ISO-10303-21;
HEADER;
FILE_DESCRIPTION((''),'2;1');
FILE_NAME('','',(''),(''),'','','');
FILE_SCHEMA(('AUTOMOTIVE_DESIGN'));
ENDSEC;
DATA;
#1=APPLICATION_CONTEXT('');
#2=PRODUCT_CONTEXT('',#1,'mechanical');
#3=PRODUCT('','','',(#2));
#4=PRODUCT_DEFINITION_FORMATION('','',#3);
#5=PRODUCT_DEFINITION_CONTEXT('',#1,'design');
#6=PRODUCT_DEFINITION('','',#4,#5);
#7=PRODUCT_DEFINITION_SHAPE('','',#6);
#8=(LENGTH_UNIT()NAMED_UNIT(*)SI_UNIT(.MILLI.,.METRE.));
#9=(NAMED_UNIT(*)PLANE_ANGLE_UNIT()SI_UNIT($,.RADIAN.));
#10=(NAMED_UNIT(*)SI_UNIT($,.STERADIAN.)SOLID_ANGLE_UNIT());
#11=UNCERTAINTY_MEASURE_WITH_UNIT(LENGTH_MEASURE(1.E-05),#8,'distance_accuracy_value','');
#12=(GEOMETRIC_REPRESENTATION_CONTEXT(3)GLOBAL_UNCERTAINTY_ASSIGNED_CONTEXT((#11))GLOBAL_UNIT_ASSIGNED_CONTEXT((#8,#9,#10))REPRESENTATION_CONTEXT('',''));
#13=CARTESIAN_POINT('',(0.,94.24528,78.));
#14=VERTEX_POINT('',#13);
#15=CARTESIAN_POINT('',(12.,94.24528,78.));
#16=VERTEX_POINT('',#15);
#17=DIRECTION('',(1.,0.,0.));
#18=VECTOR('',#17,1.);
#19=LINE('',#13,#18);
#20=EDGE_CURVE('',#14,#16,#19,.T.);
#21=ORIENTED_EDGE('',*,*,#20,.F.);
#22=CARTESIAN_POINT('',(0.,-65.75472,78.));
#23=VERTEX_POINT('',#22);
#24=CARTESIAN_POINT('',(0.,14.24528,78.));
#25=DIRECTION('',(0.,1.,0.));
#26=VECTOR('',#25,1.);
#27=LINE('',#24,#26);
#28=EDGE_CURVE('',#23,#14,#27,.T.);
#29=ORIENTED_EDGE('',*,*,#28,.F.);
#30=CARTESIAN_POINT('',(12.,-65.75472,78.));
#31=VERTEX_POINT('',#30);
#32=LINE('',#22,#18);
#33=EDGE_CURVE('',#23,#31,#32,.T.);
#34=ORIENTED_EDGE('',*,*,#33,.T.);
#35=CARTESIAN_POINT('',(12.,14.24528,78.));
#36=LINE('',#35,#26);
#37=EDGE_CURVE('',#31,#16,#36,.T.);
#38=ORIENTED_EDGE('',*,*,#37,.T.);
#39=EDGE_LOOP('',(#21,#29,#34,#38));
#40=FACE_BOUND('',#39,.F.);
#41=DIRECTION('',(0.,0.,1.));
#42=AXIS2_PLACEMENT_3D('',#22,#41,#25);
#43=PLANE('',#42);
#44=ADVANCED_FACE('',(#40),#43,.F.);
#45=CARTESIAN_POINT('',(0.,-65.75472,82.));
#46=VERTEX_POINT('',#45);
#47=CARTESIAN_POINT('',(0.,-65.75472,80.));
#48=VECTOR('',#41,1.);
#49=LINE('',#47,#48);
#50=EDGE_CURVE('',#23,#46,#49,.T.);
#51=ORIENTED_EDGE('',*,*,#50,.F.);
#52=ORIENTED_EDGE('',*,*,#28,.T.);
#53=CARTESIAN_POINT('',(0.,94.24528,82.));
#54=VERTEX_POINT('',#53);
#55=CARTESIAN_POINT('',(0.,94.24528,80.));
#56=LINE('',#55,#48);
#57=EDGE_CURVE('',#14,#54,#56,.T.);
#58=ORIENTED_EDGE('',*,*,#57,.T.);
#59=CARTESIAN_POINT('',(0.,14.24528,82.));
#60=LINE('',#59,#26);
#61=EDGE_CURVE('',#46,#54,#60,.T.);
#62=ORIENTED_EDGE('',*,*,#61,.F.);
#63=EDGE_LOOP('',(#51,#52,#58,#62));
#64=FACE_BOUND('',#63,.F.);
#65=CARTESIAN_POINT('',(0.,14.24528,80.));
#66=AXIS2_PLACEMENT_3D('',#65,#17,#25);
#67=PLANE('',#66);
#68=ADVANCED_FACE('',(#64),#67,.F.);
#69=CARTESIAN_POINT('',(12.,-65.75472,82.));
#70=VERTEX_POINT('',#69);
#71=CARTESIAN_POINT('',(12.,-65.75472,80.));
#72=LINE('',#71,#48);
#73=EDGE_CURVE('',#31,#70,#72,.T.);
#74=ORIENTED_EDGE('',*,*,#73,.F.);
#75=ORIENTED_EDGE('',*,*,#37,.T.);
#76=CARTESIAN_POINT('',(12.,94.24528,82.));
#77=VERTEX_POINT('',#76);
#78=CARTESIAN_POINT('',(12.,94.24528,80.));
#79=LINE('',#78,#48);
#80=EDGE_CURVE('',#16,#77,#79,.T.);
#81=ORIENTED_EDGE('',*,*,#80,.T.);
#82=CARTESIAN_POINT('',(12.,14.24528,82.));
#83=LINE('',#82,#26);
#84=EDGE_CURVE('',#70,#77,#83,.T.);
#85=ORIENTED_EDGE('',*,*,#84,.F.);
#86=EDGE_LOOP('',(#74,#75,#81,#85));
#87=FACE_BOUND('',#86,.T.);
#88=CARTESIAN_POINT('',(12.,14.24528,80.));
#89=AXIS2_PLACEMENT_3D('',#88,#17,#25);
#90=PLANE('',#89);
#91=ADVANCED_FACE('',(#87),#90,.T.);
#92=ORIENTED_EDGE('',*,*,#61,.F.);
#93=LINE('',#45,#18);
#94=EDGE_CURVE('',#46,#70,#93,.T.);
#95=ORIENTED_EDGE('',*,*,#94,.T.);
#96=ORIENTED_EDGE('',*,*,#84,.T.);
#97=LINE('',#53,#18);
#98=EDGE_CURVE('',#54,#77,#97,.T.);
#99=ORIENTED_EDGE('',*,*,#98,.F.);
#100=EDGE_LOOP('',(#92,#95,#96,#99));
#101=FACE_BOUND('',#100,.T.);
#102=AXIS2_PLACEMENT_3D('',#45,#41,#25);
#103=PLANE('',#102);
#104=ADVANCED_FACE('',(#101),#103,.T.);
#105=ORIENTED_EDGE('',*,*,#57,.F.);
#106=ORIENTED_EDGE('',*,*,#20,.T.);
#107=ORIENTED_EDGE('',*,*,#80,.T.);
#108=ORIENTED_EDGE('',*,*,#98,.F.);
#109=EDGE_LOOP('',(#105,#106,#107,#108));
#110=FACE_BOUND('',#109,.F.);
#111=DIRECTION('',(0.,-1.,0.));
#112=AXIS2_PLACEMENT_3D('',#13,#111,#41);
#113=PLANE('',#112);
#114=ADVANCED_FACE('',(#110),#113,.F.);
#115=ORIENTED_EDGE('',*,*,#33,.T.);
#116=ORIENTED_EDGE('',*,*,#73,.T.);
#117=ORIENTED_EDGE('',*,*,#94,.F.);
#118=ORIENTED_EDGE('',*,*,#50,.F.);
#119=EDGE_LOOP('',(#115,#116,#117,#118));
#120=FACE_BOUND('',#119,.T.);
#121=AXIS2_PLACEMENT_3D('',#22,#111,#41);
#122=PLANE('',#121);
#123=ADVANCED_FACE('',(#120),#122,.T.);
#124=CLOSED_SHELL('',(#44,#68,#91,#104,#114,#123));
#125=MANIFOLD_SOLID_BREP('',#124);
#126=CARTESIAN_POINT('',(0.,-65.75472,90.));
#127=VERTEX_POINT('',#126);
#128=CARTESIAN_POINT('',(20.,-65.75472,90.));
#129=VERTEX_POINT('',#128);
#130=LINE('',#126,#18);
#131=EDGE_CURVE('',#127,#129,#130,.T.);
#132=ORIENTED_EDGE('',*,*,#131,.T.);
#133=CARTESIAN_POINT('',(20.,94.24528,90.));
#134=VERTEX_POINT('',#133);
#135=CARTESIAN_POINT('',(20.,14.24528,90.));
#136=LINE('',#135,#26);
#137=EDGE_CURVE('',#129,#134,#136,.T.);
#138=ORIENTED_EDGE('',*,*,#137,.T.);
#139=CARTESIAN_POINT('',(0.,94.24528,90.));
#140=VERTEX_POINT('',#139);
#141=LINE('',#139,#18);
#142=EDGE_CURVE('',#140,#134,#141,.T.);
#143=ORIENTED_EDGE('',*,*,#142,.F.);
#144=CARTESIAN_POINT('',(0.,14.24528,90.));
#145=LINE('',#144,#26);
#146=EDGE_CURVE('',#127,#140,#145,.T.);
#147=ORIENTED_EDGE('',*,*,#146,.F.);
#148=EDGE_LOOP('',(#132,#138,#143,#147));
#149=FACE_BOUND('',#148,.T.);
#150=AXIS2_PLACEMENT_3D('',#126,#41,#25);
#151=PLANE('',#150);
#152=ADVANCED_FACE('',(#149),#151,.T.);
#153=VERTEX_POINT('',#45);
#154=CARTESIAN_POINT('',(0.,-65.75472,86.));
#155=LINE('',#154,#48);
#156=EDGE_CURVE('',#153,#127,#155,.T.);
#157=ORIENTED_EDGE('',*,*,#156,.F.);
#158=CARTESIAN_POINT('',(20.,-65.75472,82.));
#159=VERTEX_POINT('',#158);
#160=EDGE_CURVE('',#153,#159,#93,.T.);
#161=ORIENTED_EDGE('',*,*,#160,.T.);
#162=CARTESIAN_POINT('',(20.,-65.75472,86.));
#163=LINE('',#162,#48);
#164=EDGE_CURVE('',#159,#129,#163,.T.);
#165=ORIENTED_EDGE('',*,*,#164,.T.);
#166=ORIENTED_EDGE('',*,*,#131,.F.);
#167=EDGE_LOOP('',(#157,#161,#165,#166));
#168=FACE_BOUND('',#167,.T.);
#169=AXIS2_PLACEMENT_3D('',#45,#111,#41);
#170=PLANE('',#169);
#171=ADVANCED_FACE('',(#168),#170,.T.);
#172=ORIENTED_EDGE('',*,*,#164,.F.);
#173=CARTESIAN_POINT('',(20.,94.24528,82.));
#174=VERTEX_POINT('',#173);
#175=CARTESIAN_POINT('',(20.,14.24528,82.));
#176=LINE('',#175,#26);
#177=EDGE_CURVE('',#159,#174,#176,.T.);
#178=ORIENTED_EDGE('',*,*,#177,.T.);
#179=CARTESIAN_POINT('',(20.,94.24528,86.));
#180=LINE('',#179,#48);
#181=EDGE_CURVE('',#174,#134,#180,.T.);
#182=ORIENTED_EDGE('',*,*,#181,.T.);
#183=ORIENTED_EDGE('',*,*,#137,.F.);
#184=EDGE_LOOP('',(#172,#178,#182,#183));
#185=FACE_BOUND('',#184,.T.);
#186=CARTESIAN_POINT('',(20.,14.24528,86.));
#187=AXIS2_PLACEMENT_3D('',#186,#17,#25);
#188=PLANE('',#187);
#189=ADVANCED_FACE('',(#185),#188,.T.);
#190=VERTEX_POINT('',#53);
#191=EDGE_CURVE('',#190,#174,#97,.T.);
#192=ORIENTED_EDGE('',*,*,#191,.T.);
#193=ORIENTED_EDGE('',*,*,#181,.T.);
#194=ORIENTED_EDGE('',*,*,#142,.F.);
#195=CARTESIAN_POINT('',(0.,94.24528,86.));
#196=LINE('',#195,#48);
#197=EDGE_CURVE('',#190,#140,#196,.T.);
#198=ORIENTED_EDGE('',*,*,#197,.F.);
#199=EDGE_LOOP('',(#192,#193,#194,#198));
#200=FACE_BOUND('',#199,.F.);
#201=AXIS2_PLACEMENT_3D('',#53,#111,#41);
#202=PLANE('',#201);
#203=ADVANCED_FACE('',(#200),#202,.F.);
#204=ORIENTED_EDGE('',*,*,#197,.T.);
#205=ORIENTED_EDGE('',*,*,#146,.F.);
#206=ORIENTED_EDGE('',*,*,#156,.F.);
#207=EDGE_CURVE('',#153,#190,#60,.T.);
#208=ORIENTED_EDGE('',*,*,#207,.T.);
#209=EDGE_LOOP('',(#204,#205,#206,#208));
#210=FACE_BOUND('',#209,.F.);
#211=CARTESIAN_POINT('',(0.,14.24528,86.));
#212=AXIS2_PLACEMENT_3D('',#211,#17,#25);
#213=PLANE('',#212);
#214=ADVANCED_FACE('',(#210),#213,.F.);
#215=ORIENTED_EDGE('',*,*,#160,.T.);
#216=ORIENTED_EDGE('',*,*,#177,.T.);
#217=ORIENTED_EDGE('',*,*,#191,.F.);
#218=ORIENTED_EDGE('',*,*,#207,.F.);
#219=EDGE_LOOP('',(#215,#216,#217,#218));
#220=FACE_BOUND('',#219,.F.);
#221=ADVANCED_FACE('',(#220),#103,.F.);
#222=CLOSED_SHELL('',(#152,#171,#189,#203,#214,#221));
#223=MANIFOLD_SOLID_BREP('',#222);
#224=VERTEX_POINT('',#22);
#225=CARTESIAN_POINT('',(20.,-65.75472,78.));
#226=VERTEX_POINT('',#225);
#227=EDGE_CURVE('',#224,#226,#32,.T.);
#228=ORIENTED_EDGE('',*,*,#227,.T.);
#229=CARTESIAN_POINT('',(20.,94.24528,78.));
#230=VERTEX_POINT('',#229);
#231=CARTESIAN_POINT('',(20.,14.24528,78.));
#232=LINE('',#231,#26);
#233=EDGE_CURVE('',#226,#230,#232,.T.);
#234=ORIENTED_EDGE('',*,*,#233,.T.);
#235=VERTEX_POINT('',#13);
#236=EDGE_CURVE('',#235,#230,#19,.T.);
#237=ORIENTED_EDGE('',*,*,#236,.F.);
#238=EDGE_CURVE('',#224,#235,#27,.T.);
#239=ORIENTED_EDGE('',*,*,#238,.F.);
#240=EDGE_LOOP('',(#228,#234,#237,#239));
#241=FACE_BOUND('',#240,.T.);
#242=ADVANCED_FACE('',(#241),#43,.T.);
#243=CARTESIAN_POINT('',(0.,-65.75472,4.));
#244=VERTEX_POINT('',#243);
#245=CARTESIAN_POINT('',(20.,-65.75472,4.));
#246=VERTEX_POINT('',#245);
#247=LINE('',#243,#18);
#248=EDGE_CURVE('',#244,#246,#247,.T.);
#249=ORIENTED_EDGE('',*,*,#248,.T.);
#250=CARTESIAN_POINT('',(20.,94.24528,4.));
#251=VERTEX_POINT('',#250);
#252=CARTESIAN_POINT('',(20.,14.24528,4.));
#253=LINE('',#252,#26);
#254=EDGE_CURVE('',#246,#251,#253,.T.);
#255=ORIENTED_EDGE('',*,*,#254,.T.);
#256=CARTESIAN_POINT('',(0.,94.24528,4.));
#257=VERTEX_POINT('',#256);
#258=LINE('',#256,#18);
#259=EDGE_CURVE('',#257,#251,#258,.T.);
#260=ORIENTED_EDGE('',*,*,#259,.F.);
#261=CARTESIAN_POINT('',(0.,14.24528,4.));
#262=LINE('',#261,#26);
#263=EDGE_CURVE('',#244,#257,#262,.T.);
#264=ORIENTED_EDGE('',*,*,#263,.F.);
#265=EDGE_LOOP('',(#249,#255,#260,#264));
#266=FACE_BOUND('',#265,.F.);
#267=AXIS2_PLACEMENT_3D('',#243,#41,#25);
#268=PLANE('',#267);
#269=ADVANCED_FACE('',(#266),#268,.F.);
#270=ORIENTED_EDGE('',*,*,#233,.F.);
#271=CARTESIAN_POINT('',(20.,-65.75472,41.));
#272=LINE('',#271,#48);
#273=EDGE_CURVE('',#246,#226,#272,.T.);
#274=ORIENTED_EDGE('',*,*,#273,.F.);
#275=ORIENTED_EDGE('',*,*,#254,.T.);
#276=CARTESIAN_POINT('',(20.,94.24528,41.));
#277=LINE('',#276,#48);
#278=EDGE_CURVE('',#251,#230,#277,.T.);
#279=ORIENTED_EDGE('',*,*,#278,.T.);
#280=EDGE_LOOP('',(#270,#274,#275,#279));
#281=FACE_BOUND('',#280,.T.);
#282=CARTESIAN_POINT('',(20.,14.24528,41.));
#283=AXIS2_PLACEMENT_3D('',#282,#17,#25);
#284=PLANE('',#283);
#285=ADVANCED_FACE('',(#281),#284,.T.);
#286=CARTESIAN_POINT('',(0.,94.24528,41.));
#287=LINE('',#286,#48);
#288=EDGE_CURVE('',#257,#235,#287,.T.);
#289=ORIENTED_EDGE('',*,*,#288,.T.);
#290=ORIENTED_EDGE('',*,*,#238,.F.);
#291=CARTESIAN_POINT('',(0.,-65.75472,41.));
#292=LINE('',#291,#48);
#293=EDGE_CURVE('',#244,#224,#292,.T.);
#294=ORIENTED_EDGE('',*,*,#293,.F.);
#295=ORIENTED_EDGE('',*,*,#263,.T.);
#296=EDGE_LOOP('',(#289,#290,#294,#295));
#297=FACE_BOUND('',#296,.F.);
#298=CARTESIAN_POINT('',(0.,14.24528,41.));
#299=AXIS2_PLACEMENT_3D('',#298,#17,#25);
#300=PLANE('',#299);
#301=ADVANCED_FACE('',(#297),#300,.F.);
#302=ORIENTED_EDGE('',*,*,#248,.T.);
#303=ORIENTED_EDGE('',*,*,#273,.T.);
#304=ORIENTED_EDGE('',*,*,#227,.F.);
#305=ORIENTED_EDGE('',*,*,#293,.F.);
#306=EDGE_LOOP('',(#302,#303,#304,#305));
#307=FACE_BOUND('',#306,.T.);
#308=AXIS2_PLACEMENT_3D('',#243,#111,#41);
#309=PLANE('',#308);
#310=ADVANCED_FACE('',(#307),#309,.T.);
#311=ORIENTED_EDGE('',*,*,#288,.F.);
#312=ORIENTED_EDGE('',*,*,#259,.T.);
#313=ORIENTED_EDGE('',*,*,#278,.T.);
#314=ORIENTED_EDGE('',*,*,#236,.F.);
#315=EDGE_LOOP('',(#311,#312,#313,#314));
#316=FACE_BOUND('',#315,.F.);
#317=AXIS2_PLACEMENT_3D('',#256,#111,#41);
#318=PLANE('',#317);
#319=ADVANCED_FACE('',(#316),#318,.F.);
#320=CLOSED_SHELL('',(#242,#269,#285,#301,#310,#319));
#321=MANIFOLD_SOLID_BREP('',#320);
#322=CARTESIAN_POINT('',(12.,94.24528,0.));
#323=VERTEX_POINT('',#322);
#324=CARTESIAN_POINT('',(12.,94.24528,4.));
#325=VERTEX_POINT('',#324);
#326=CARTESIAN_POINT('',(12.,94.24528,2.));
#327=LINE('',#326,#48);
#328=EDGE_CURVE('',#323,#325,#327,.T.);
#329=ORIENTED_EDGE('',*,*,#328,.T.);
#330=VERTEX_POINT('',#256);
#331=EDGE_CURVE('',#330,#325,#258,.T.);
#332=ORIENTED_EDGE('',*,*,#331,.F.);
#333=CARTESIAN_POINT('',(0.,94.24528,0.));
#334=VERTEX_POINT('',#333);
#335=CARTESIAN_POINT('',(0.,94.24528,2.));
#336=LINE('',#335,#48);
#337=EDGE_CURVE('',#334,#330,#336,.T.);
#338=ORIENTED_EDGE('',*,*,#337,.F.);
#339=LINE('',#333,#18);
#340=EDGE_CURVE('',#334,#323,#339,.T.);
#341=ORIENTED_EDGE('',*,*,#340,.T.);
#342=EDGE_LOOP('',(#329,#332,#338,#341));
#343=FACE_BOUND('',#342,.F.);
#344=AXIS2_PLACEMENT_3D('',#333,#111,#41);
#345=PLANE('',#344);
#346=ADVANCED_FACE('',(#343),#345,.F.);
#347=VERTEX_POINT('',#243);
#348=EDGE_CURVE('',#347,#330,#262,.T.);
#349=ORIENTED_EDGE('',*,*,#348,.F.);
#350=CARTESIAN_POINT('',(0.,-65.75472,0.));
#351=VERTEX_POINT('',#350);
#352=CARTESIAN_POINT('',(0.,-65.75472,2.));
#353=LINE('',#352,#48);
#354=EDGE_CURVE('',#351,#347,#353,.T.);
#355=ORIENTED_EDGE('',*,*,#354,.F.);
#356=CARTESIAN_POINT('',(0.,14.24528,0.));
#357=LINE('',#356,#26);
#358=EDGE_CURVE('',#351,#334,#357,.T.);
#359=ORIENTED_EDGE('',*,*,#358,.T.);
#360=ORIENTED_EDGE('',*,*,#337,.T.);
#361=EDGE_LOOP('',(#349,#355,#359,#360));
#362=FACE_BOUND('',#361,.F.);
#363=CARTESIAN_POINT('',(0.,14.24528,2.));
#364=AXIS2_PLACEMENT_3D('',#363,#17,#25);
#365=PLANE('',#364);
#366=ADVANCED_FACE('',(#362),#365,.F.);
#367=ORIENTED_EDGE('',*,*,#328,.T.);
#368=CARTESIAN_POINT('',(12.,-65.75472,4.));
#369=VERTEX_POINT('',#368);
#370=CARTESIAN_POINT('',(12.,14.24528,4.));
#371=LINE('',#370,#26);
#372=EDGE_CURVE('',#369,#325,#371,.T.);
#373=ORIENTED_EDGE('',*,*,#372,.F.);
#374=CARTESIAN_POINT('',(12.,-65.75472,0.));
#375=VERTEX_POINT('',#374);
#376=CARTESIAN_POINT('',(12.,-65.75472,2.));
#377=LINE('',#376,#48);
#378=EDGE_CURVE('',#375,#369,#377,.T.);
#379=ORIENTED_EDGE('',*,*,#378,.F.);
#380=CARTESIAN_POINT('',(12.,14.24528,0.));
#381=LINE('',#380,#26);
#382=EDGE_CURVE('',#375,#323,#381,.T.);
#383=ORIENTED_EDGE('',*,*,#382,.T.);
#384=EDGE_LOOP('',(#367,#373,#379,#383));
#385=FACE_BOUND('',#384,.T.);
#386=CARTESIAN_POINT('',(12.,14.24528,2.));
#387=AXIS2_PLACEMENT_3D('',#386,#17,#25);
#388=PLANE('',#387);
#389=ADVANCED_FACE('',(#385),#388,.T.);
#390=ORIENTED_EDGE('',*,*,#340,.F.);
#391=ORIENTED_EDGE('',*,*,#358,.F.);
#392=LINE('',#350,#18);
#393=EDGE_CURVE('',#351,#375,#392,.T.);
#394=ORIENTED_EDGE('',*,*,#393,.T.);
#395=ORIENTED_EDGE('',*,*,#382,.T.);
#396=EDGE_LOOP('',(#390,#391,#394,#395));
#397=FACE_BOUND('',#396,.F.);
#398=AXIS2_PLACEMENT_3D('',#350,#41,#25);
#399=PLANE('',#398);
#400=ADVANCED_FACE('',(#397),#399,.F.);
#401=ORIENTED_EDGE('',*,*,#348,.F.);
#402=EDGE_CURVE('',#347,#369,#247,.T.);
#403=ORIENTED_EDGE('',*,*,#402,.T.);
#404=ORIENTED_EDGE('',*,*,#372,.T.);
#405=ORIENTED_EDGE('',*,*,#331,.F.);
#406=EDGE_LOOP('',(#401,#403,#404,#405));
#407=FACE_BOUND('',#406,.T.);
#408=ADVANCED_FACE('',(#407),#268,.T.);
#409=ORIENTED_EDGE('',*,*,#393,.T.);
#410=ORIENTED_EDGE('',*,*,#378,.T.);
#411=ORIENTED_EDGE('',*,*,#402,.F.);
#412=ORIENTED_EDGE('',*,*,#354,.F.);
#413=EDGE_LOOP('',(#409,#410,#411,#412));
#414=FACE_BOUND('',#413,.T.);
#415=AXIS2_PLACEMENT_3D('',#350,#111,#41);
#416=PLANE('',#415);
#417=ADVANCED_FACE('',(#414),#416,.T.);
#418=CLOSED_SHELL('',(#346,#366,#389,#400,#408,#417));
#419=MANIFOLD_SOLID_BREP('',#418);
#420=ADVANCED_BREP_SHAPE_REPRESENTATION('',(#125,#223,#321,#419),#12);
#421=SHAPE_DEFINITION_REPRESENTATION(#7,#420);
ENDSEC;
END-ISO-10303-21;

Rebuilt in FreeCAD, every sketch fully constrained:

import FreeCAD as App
import Part
import Sketcher

V = App.Vector
Q = App.Units.Quantity

doc = App.newDocument("Part")
body = doc.addObject("PartDesign::Body", "Body")
body.AllowCompound = True

sketch1 = doc.addObject("Sketcher::SketchObject", "Sketch")
body.addObject(sketch1)
sketch1.AttachmentSupport = (doc.YZ_Plane, [""])
sketch1.MapMode = "FlatFace"
sketch1.addGeometry([
    Part.LineSegment(V(-66, 78, 0), V(-66, 4, 0)),
    Part.LineSegment(V(-66, 4, 0), V(94, 4, 0)),
    Part.LineSegment(V(94, 4, 0), V(94, 78, 0)),
    Part.LineSegment(V(94, 78, 0), V(-66, 78, 0)),
    Part.LineSegment(V(-66, 90, 0), V(-66, 82, 0)),
    Part.LineSegment(V(-66, 82, 0), V(94, 82, 0)),
    Part.LineSegment(V(94, 82, 0), V(94, 90, 0)),
    Part.LineSegment(V(94, 90, 0), V(-66, 90, 0)),
], False)
sketch1.addConstraint([
    Sketcher.Constraint("Coincident", 0, 2, 1, 1),
    Sketcher.Constraint("Coincident", 1, 2, 2, 1),
    Sketcher.Constraint("Coincident", 2, 2, 3, 1),
    Sketcher.Constraint("Coincident", 3, 2, 0, 1),
    Sketcher.Constraint("Coincident", 4, 2, 5, 1),
    Sketcher.Constraint("Coincident", 5, 2, 6, 1),
    Sketcher.Constraint("Coincident", 6, 2, 7, 1),
    Sketcher.Constraint("Coincident", 7, 2, 4, 1),
    Sketcher.Constraint("Vertical", 0),
    Sketcher.Constraint("Horizontal", 1),
    Sketcher.Constraint("Vertical", 2),
    Sketcher.Constraint("Horizontal", 3),
    Sketcher.Constraint("Vertical", 4),
    Sketcher.Constraint("Horizontal", 5),
    Sketcher.Constraint("Vertical", 6),
    Sketcher.Constraint("Horizontal", 7),
    Sketcher.Constraint("Vertical", 3, 2, 4, 2),
    Sketcher.Constraint("Vertical", 2, 2, 5, 2),
    Sketcher.Constraint("DistanceX", 1, 1, 1, 2, Q("160 mm")),
    Sketcher.Constraint("DistanceY", 0, 2, 0, 1, Q("74 mm")),
    Sketcher.Constraint("DistanceY", 4, 2, 4, 1, Q("8 mm")),
    Sketcher.Constraint("DistanceY", -1, 1, 0, 2, Q("4 mm")),
    Sketcher.Constraint("DistanceY", -1, 1, 4, 2, Q("82 mm")),
    Sketcher.Constraint("DistanceX", 0, 2, -1, 1, Q("65.75472 mm")),
])
pad1 = doc.addObject("PartDesign::Pad", "Pad")
body.addObject(pad1)
pad1.Profile = sketch1
pad1.Length = 20
body2 = doc.addObject("PartDesign::Body", "Body001")
body2.AllowCompound = True

sketch2 = doc.addObject("Sketcher::SketchObject", "Sketch001")
body2.addObject(sketch2)
sketch2.AttachmentSupport = (doc.getObject("YZ_Plane001"), [""])
sketch2.MapMode = "FlatFace"
sketch2.addGeometry([
    Part.LineSegment(V(-65.8, 82, 0), V(-65.8, 78, 0)),
    Part.LineSegment(V(-65.8, 78, 0), V(94.2, 78, 0)),
    Part.LineSegment(V(94.2, 78, 0), V(94.2, 82, 0)),
    Part.LineSegment(V(94.2, 82, 0), V(-65.8, 82, 0)),
    Part.LineSegment(V(-65.8, 4, 0), V(-65.8, 0, 0)),
    Part.LineSegment(V(-65.8, 0, 0), V(94.2, 0, 0)),
    Part.LineSegment(V(94.2, 0, 0), V(94.2, 4, 0)),
    Part.LineSegment(V(94.2, 4, 0), V(-65.8, 4, 0)),
], False)
sketch2.addConstraint([
    Sketcher.Constraint("Coincident", 0, 2, 1, 1),
    Sketcher.Constraint("Coincident", 1, 2, 2, 1),
    Sketcher.Constraint("Coincident", 2, 2, 3, 1),
    Sketcher.Constraint("Coincident", 3, 2, 0, 1),
    Sketcher.Constraint("Coincident", 4, 2, 5, 1),
    Sketcher.Constraint("Coincident", 5, 2, 6, 1),
    Sketcher.Constraint("Coincident", 6, 2, 7, 1),
    Sketcher.Constraint("Coincident", 7, 2, 4, 1),
    Sketcher.Constraint("Vertical", 0),
    Sketcher.Constraint("Horizontal", 1),
    Sketcher.Constraint("Vertical", 2),
    Sketcher.Constraint("Horizontal", 3),
    Sketcher.Constraint("Vertical", 4),
    Sketcher.Constraint("Horizontal", 5),
    Sketcher.Constraint("Vertical", 6),
    Sketcher.Constraint("Horizontal", 7),
    Sketcher.Constraint("PointOnObject", 4, 2, -1),
    Sketcher.Constraint("Vertical", 3, 2, 4, 2),
    Sketcher.Constraint("Vertical", 2, 2, 5, 2),
    Sketcher.Constraint("Equal", 2, 4),
    Sketcher.Constraint("DistanceX", 1, 1, 1, 2, Q("160 mm")),
    Sketcher.Constraint("DistanceY", 0, 2, 0, 1, Q("4 mm")),
    Sketcher.Constraint("DistanceY", -1, 1, 0, 2, Q("78 mm")),
    Sketcher.Constraint("DistanceX", 0, 2, -1, 1, Q("65.75472 mm")),
])
pad2 = doc.addObject("PartDesign::Pad", "Pad001")
body2.addObject(pad2)
pad2.Profile = sketch2
pad2.Length = 12

doc.recompute()
